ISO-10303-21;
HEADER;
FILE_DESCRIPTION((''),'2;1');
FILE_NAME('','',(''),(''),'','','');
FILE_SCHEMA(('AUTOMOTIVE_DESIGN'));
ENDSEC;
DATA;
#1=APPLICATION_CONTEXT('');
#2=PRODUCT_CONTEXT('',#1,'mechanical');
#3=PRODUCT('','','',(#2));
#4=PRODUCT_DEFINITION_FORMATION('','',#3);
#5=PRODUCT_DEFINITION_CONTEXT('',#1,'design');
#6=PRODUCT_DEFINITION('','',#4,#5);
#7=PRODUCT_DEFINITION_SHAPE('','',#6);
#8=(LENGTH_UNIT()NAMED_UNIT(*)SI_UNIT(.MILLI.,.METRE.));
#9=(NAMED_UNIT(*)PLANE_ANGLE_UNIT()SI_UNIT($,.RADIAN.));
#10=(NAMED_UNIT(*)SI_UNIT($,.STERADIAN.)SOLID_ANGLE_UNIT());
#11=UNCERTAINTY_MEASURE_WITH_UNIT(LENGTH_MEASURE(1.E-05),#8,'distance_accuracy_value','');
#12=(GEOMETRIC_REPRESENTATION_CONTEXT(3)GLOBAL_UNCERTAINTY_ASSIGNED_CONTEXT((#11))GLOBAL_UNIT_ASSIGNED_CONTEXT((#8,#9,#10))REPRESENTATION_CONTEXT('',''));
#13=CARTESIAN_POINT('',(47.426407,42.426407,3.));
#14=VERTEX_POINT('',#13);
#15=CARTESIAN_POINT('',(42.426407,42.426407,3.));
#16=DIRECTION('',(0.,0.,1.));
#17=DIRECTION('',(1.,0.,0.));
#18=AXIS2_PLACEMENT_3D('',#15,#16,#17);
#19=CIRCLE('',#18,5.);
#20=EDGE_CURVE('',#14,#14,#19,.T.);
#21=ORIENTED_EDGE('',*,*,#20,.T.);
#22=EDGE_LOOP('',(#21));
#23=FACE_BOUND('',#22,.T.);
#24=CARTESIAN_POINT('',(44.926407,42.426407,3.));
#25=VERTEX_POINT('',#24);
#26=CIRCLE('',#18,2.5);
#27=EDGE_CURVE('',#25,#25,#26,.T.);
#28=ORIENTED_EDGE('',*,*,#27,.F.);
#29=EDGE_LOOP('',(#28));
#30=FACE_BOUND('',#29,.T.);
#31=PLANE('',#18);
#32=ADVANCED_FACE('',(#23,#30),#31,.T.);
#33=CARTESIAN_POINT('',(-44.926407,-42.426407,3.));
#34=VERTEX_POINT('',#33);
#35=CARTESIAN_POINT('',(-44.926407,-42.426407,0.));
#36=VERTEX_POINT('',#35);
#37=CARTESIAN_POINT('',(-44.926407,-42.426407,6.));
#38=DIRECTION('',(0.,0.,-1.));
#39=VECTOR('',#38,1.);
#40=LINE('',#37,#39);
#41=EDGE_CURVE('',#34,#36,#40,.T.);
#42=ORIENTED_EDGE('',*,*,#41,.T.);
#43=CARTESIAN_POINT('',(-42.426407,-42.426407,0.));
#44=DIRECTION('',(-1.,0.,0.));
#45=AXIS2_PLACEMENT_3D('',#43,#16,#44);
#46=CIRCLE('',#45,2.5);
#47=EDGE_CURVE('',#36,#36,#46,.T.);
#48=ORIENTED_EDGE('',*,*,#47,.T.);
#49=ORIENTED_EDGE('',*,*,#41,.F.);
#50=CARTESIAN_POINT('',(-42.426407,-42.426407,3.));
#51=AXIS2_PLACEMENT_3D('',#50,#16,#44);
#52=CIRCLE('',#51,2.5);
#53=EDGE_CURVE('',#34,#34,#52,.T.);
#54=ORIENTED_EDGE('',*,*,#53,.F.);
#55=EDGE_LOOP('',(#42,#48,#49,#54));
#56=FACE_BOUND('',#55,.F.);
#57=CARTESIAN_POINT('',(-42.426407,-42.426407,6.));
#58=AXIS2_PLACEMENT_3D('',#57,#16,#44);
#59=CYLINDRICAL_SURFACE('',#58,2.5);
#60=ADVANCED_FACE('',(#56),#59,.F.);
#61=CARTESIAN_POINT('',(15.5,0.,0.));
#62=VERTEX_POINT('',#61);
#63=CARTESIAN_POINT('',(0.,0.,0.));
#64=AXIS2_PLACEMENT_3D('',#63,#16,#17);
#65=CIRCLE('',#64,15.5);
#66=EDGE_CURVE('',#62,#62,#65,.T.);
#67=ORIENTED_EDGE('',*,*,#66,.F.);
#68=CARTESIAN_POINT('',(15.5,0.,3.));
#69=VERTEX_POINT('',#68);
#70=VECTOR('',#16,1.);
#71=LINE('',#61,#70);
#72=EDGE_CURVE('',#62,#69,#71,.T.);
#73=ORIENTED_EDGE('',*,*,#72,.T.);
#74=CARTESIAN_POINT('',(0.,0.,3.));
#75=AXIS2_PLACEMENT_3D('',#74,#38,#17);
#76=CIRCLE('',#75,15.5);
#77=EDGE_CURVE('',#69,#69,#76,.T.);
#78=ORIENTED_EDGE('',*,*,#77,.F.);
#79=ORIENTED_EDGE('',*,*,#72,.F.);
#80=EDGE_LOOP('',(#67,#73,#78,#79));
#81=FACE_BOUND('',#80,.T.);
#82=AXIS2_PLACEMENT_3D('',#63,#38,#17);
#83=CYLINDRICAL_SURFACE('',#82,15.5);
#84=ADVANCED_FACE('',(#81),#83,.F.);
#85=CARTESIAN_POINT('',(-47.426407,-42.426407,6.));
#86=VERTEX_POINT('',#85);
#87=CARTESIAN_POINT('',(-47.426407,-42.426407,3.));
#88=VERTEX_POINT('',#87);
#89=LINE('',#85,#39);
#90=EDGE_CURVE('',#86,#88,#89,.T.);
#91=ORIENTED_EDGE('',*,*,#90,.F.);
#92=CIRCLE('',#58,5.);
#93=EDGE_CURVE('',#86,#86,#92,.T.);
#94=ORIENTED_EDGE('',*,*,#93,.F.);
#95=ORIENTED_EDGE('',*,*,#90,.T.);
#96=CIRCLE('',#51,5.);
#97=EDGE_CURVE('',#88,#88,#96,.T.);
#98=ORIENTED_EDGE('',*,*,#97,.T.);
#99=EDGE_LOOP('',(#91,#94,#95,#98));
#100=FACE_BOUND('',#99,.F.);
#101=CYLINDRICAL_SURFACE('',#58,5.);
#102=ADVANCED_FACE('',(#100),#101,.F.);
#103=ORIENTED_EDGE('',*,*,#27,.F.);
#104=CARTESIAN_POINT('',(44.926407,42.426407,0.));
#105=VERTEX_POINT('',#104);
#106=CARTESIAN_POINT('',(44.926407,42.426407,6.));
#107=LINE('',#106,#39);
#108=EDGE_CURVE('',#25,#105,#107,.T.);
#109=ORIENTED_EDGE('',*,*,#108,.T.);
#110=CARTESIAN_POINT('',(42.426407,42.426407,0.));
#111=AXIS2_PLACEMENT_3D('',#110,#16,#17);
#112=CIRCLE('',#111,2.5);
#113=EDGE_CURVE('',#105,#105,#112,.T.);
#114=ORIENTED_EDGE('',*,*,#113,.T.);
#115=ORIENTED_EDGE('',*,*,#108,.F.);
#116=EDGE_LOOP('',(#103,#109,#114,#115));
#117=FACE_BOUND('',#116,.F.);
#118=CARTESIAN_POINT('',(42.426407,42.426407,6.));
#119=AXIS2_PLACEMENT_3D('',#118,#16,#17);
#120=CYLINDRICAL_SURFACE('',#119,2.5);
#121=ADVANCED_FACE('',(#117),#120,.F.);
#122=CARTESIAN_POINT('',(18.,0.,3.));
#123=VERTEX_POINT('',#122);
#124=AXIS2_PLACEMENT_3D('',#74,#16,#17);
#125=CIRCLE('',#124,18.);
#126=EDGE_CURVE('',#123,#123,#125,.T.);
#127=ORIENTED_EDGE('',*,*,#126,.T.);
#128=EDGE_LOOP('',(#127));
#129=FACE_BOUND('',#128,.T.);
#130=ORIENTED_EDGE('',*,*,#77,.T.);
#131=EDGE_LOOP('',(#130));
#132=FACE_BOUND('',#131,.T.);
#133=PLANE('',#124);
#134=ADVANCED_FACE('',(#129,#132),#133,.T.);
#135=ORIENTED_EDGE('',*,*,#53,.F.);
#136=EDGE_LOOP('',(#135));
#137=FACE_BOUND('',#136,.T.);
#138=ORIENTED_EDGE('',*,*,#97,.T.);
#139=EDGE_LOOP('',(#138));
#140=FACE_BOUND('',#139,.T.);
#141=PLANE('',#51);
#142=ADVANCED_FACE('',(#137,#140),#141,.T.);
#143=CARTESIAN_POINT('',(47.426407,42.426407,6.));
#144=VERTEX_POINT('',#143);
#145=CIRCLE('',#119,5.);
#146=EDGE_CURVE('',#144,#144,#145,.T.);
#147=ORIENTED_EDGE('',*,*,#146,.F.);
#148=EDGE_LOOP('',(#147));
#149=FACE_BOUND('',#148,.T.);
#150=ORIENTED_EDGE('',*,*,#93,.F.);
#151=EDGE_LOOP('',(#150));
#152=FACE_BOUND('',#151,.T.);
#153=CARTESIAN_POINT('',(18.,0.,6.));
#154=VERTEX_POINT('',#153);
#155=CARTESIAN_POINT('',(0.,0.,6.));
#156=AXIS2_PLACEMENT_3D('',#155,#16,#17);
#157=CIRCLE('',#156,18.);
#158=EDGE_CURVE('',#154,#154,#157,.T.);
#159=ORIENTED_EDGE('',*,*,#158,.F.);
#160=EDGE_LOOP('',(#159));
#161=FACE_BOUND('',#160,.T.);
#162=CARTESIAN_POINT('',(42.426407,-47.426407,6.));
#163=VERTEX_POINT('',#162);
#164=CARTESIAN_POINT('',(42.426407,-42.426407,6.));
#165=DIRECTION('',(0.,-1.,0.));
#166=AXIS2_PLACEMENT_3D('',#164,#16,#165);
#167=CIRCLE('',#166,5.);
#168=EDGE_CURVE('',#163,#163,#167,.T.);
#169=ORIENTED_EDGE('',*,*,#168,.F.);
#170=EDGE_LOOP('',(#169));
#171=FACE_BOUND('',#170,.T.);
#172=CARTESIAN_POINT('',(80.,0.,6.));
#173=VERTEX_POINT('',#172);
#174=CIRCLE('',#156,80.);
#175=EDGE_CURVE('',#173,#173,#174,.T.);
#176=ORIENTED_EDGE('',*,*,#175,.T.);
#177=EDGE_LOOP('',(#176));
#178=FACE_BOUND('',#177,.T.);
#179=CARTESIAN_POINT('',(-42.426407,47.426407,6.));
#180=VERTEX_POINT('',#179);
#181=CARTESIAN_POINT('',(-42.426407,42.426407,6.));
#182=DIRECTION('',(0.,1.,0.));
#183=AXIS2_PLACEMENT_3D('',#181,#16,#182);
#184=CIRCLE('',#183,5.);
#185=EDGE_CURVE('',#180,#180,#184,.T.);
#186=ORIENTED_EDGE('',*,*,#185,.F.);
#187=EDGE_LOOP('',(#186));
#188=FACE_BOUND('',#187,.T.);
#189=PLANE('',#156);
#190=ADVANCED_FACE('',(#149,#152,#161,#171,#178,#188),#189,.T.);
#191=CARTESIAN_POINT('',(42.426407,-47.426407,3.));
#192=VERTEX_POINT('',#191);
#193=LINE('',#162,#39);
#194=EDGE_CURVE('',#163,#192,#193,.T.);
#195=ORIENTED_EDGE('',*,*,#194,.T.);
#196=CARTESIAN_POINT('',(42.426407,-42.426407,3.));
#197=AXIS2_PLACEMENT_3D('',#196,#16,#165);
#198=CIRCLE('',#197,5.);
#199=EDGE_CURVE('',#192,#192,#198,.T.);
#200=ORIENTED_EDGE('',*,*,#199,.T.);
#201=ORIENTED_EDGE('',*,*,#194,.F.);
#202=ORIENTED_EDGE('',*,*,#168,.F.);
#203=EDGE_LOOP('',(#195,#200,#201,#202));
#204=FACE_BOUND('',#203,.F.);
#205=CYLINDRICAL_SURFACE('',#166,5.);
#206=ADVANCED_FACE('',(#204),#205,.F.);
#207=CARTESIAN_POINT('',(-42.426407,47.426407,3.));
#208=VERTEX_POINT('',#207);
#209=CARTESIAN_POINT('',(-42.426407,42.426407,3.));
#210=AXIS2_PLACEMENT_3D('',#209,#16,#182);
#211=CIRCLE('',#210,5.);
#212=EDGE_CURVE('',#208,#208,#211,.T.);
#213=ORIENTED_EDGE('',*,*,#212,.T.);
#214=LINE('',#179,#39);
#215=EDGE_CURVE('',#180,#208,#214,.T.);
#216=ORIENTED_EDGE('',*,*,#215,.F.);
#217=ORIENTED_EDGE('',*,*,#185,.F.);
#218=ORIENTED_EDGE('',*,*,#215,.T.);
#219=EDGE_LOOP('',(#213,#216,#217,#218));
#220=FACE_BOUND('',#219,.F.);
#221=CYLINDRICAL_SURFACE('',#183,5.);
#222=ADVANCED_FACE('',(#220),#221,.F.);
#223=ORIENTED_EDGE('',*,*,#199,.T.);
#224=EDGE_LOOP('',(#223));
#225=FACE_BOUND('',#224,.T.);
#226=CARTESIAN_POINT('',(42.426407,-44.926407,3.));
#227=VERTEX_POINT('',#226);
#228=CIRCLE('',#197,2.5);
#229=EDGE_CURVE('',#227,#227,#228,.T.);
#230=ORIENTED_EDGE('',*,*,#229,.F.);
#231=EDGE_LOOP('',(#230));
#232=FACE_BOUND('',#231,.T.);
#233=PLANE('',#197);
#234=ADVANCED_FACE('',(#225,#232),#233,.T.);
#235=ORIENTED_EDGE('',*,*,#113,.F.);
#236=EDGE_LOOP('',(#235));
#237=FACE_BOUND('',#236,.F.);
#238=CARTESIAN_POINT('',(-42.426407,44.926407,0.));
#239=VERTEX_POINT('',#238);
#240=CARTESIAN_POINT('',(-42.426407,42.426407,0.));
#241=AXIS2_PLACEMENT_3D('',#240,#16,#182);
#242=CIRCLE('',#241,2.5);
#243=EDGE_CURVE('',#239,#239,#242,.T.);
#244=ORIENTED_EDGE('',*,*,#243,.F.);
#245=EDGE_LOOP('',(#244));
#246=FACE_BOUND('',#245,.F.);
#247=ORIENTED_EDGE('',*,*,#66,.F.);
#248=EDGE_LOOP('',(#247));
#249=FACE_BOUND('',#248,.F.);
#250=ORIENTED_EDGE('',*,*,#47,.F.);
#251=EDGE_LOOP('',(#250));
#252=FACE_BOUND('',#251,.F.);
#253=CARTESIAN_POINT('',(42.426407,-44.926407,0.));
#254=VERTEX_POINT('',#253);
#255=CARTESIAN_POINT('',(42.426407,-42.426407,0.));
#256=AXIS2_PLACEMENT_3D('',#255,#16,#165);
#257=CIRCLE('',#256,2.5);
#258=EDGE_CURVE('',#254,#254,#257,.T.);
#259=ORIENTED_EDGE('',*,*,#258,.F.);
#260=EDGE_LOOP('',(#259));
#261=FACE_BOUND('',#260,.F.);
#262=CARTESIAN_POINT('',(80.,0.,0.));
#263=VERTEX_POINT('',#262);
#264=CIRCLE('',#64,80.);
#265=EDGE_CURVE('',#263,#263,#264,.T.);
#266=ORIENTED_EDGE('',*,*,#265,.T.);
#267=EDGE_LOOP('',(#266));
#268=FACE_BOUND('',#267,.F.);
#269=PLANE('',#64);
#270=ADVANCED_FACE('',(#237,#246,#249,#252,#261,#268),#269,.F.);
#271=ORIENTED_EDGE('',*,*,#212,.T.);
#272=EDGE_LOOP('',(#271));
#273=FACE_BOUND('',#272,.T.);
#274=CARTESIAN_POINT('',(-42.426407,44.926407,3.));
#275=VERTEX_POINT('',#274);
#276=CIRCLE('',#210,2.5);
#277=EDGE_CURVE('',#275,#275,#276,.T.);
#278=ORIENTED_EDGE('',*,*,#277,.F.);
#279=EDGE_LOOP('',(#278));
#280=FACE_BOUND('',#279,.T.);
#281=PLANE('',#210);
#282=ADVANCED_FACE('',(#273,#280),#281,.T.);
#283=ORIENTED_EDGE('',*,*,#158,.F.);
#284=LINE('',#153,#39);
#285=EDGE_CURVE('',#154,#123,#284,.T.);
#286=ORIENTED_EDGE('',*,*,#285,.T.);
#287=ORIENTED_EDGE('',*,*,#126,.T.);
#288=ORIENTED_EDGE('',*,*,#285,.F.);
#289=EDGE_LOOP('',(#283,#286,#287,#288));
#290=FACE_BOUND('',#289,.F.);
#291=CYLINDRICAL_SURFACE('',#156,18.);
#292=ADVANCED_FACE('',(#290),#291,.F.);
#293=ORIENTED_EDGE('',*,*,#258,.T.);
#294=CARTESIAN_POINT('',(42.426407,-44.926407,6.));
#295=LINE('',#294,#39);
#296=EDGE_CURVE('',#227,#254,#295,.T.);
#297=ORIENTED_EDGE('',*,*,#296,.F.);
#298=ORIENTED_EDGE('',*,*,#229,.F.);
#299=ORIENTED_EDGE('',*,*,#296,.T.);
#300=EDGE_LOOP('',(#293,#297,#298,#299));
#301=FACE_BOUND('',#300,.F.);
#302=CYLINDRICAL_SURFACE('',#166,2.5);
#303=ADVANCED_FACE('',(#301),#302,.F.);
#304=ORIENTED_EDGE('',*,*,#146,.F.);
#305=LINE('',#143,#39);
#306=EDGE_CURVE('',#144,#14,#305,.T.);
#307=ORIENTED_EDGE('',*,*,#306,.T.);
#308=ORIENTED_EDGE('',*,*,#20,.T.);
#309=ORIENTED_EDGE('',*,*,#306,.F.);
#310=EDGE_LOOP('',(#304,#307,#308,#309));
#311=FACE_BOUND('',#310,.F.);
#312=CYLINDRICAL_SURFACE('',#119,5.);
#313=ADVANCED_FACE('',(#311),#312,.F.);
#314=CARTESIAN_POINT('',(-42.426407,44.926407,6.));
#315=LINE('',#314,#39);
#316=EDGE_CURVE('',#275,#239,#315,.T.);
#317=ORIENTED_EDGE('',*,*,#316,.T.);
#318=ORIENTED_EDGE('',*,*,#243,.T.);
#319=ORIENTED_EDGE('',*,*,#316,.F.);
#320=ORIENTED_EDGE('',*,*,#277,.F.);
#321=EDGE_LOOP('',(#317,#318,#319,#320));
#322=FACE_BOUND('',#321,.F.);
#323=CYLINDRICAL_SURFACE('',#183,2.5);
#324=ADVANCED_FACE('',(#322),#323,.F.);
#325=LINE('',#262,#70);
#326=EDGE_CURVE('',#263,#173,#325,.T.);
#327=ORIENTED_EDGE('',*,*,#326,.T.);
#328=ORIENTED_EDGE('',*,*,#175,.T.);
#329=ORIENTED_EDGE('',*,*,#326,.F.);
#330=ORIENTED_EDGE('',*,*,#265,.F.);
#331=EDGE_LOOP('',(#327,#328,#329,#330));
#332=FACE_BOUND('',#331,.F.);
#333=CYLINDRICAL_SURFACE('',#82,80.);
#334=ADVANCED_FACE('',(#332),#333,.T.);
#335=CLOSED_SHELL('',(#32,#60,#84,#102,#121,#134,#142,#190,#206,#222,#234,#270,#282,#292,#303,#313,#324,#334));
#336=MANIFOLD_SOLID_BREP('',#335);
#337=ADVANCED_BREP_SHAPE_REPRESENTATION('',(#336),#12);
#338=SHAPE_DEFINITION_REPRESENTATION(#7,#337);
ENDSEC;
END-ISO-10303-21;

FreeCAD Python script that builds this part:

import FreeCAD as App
import Part
import Sketcher

doc = App.newDocument("Part")
body = doc.addObject("PartDesign::Body", "Body")

# Sketch on XY plane
sketch1 = body.newObject("Sketcher::SketchObject", "Sketch")
sketch1.AttachmentSupport = (doc.getObject("XY_Plane"), [""])
sketch1.MapMode = "FlatFace"
sketch1.addGeometry([
    Part.Circle(App.Vector(0, 0, 0), App.Vector(0, 0, 1), 80),
    Part.Circle(App.Vector(0, 0, 0), App.Vector(0, 0, 1), 15.5),
], False)
sketch1.addConstraint([
    Sketcher.Constraint("Coincident", 0, 3, -1, 1),
    Sketcher.Constraint("Coincident", 1, 3, -1, 1),
    Sketcher.Constraint("Diameter", 0, 160.0),
    Sketcher.Constraint("Diameter", 1, 31.0),
])
pad1 = body.newObject("PartDesign::Pad", "Pad")
pad1.Profile = sketch1
pad1.Length = 6

# Sketch on XY plane
sketch2 = body.newObject("Sketcher::SketchObject", "Sketch001")
sketch2.AttachmentSupport = (doc.getObject("XY_Plane"), [""])
sketch2.MapMode = "FlatFace"
sketch2.AttachmentOffset = App.Placement(App.Vector(0, 0, 6), App.Rotation())
sketch2.addGeometry(Part.Circle(App.Vector(42.426407, 42.426407, 0), App.Vector(0, 0, 1), 2.5), False)
sketch2.addConstraint([
    Sketcher.Constraint("Diameter", 0, 5.0),
    Sketcher.Constraint("DistanceX", -1, 1, 0, 3, 42.426407),
    Sketcher.Constraint("DistanceY", -1, 1, 0, 3, 42.426407),
])
pocket1 = body.newObject("PartDesign::Pocket", "Pocket")
pocket1.Profile = sketch2
pocket1.Length = 6
doc.recompute()

polarpattern = body.newObject("PartDesign::PolarPattern", "PolarPattern")
polarpattern.Originals = [pocket1]
polarpattern.Axis = (doc.getObject("Z_Axis"), [""])
polarpattern.Angle = 360
polarpattern.Occurrences = 4
body.Tip = polarpattern

# Sketch on XY plane
sketch3 = body.newObject("Sketcher::SketchObject", "Sketch002")
sketch3.AttachmentSupport = (doc.getObject("XY_Plane"), [""])
sketch3.MapMode = "FlatFace"
sketch3.AttachmentOffset = App.Placement(App.Vector(0, 0, 6), App.Rotation())
sketch3.addGeometry(Part.Circle(App.Vector(42.426407, 42.426407, 0), App.Vector(0, 0, 1), 5), False)
sketch3.addConstraint([
    Sketcher.Constraint("Diameter", 0, 10.0),
    Sketcher.Constraint("DistanceX", -1, 1, 0, 3, 42.426407),
    Sketcher.Constraint("DistanceY", -1, 1, 0, 3, 42.426407),
])
pocket2 = body.newObject("PartDesign::Pocket", "Pocket001")
pocket2.Profile = sketch3
pocket2.Length = 3
doc.recompute()

polarpattern2 = body.newObject("PartDesign::PolarPattern", "PolarPattern001")
polarpattern2.Originals = [pocket2]
polarpattern2.Axis = (doc.getObject("Z_Axis"), [""])
polarpattern2.Angle = 360
polarpattern2.Occurrences = 4
body.Tip = polarpattern2

# Sketch on XY plane
sketch4 = body.newObject("Sketcher::SketchObject", "Sketch003")
sketch4.AttachmentSupport = (doc.getObject("XY_Plane"), [""])
sketch4.MapMode = "FlatFace"
sketch4.AttachmentOffset = App.Placement(App.Vector(0, 0, 6), App.Rotation())
sketch4.addGeometry(Part.Circle(App.Vector(0, 0, 0), App.Vector(0, 0, 1), 18), False)
sketch4.addConstraint([
    Sketcher.Constraint("Coincident", 0, 3, -1, 1),
    Sketcher.Constraint("Diameter", 0, 36.0),
])
pocket3 = body.newObject("PartDesign::Pocket", "Pocket002")
pocket3.Profile = sketch4
pocket3.Length = 3

doc.recompute()
